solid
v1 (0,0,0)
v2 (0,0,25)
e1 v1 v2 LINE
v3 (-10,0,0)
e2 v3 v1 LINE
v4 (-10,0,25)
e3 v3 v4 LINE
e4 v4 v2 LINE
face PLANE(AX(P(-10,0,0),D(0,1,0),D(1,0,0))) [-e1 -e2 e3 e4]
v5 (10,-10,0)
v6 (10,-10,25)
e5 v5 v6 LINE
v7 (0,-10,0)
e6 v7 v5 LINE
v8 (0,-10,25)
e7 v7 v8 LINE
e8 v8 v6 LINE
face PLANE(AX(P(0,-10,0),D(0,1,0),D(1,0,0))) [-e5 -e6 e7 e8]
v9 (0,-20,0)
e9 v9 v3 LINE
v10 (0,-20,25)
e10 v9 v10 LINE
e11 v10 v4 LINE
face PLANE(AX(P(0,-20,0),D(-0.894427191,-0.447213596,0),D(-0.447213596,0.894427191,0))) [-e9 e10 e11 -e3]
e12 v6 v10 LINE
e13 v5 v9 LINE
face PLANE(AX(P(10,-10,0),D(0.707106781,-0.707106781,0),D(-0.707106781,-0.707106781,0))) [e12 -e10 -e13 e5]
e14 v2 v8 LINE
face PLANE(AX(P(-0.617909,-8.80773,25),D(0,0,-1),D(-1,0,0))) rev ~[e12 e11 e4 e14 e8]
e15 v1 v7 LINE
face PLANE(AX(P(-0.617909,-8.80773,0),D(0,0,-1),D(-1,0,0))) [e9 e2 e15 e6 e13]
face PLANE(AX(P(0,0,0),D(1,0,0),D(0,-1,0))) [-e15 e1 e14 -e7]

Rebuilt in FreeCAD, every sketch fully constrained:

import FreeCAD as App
import Part
import Sketcher
Q = App.Units.Quantity


def add_polygon(sketch, points):
    """Adds a closed chain of lines whose ends are joined by coincident constraints."""
    first, n = sketch.GeometryCount, len(points)
    for a, b in zip(points, points[1:] + points[:1]):
        sketch.addGeometry(Part.LineSegment(App.Vector(*a, 0), App.Vector(*b, 0)), False)
    for i in range(n):
        sketch.addConstraint(Sketcher.Constraint("Coincident", first + i, 2, first + (i + 1) % n, 1))

doc = App.newDocument("Part")
body = doc.addObject("PartDesign::Body", "Body")

# Sketch on XY plane
sketch1 = body.newObject("Sketcher::SketchObject", "Sketch")
sketch1.AttachmentSupport = (doc.getObject("XY_Plane"), [""])
sketch1.MapMode = "FlatFace"
add_polygon(sketch1, [(0, 0), (-10, 0), (0, -20), (10, -10), (0, -10)])  # lines 0-4
sketch1.addConstraint([
    Sketcher.Constraint("Horizontal", 0),
    Sketcher.Constraint("Horizontal", 3),
    Sketcher.Constraint("Vertical", 4),
    Sketcher.Constraint("Coincident", 4, 2, -1, 1),
    Sketcher.Constraint("PointOnObject", 1, 2, -2),
    Sketcher.Constraint("Equal", 0, 3),
    Sketcher.Constraint("Equal", 3, 4),
    Sketcher.Constraint("DistanceX", 0, 2, 0, 1, Q("10 mm")),
    Sketcher.Constraint("Angle", 2, Q("45 deg")),
])
pad1 = body.newObject("PartDesign::Pad", "Pad")
pad1.Profile = sketch1
pad1.Length = 25

doc.recompute()
